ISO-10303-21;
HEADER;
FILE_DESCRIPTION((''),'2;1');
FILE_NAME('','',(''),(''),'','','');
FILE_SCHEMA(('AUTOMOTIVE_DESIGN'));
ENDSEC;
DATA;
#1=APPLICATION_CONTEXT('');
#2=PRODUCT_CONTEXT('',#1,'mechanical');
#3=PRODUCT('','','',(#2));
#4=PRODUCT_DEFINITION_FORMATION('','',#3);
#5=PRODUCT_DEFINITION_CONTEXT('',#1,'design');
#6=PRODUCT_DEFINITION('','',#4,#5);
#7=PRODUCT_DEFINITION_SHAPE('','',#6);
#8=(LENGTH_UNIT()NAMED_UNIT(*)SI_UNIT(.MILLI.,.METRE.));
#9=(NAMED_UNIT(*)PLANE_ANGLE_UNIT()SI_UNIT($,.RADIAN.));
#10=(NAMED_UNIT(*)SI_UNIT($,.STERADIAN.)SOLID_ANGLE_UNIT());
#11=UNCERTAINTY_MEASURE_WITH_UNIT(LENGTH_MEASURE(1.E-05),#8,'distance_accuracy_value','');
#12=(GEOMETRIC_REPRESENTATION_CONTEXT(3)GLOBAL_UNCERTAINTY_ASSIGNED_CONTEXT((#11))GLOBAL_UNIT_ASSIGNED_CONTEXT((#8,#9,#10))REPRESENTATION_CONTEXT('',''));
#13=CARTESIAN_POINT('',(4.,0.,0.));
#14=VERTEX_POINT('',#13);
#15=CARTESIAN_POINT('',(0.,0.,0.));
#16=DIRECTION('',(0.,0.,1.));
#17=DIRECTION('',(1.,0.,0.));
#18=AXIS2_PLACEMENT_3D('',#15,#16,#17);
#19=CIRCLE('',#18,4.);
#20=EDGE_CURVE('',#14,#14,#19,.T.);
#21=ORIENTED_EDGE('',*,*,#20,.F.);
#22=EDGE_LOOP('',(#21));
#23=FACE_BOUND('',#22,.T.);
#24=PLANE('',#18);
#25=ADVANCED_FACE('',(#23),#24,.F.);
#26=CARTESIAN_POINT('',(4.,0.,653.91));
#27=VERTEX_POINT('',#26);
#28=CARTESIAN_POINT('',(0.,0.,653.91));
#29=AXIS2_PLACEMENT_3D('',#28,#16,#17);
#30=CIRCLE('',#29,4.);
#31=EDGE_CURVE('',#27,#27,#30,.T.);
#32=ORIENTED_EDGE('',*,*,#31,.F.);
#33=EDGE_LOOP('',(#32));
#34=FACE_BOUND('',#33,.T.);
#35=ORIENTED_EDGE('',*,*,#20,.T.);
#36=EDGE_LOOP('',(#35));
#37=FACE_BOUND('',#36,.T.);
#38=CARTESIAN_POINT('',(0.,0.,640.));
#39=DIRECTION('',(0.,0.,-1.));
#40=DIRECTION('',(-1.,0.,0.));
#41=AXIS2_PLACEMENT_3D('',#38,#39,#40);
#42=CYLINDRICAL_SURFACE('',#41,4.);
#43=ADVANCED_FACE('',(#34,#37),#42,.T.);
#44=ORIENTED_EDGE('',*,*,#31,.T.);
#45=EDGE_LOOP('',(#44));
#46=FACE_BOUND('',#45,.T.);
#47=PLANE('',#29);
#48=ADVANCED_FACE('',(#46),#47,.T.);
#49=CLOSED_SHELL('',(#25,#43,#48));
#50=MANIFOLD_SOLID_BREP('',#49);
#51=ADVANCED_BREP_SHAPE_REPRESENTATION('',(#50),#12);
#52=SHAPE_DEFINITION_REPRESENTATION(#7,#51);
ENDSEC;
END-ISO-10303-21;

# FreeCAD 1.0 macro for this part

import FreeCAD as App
import Part
import Sketcher

V = App.Vector

doc = App.newDocument("Part")
params = doc.addObject("Spreadsheet::Sheet", "Params")
for row, (alias, value) in enumerate([
    ("sketch1_diameter", "8 mm"),
    ("pad1_length", "640 mm"),
    ("sketch2_diameter", "8 mm"),
    ("pad2_length", "13.91 mm"),
], start=1):
    params.set(f"A{row}", alias)
    params.set(f"B{row}", "=" + value)
    params.setAlias(f"B{row}", alias)

body = doc.addObject("PartDesign::Body", "Body")

# Sketch on XY plane
sketch1 = body.newObject("Sketcher::SketchObject", "Sketch")
sketch1.AttachmentSupport = (doc.getObject("XY_Plane"), [""])
sketch1.MapMode = "FlatFace"
sketch1.addGeometry(Part.Circle(V(0, 0, 0), V(0, 0, 1), 4), False)
sketch1.addConstraint([
    Sketcher.Constraint("Coincident", 0, 3, -1, 1),
    Sketcher.Constraint("Diameter", 0, 8.0),
])
sketch1.setExpression("Constraints[1]", "Params.sketch1_diameter")
pad1 = body.newObject("PartDesign::Pad", "Pad")
pad1.Profile = sketch1
pad1.setExpression("Length", "Params.pad1_length")

# Sketch on XY plane
sketch2 = body.newObject("Sketcher::SketchObject", "Sketch001")
sketch2.AttachmentSupport = (doc.getObject("XY_Plane"), [""])
sketch2.MapMode = "FlatFace"
sketch2.AttachmentOffset = App.Placement(V(0, 0, 640), App.Rotation())
sketch2.addGeometry(Part.Circle(V(0, 0, 0), V(0, 0, 1), 4), False)
sketch2.addConstraint([
    Sketcher.Constraint("Coincident", 0, 3, -1, 1),
    Sketcher.Constraint("Diameter", 0, 8.0),
])
sketch2.setExpression("Constraints[1]", "Params.sketch2_diameter")
pad2 = body.newObject("PartDesign::Pad", "Pad001")
pad2.Profile = sketch2
pad2.setExpression("Length", "Params.pad2_length")

doc.recompute()
